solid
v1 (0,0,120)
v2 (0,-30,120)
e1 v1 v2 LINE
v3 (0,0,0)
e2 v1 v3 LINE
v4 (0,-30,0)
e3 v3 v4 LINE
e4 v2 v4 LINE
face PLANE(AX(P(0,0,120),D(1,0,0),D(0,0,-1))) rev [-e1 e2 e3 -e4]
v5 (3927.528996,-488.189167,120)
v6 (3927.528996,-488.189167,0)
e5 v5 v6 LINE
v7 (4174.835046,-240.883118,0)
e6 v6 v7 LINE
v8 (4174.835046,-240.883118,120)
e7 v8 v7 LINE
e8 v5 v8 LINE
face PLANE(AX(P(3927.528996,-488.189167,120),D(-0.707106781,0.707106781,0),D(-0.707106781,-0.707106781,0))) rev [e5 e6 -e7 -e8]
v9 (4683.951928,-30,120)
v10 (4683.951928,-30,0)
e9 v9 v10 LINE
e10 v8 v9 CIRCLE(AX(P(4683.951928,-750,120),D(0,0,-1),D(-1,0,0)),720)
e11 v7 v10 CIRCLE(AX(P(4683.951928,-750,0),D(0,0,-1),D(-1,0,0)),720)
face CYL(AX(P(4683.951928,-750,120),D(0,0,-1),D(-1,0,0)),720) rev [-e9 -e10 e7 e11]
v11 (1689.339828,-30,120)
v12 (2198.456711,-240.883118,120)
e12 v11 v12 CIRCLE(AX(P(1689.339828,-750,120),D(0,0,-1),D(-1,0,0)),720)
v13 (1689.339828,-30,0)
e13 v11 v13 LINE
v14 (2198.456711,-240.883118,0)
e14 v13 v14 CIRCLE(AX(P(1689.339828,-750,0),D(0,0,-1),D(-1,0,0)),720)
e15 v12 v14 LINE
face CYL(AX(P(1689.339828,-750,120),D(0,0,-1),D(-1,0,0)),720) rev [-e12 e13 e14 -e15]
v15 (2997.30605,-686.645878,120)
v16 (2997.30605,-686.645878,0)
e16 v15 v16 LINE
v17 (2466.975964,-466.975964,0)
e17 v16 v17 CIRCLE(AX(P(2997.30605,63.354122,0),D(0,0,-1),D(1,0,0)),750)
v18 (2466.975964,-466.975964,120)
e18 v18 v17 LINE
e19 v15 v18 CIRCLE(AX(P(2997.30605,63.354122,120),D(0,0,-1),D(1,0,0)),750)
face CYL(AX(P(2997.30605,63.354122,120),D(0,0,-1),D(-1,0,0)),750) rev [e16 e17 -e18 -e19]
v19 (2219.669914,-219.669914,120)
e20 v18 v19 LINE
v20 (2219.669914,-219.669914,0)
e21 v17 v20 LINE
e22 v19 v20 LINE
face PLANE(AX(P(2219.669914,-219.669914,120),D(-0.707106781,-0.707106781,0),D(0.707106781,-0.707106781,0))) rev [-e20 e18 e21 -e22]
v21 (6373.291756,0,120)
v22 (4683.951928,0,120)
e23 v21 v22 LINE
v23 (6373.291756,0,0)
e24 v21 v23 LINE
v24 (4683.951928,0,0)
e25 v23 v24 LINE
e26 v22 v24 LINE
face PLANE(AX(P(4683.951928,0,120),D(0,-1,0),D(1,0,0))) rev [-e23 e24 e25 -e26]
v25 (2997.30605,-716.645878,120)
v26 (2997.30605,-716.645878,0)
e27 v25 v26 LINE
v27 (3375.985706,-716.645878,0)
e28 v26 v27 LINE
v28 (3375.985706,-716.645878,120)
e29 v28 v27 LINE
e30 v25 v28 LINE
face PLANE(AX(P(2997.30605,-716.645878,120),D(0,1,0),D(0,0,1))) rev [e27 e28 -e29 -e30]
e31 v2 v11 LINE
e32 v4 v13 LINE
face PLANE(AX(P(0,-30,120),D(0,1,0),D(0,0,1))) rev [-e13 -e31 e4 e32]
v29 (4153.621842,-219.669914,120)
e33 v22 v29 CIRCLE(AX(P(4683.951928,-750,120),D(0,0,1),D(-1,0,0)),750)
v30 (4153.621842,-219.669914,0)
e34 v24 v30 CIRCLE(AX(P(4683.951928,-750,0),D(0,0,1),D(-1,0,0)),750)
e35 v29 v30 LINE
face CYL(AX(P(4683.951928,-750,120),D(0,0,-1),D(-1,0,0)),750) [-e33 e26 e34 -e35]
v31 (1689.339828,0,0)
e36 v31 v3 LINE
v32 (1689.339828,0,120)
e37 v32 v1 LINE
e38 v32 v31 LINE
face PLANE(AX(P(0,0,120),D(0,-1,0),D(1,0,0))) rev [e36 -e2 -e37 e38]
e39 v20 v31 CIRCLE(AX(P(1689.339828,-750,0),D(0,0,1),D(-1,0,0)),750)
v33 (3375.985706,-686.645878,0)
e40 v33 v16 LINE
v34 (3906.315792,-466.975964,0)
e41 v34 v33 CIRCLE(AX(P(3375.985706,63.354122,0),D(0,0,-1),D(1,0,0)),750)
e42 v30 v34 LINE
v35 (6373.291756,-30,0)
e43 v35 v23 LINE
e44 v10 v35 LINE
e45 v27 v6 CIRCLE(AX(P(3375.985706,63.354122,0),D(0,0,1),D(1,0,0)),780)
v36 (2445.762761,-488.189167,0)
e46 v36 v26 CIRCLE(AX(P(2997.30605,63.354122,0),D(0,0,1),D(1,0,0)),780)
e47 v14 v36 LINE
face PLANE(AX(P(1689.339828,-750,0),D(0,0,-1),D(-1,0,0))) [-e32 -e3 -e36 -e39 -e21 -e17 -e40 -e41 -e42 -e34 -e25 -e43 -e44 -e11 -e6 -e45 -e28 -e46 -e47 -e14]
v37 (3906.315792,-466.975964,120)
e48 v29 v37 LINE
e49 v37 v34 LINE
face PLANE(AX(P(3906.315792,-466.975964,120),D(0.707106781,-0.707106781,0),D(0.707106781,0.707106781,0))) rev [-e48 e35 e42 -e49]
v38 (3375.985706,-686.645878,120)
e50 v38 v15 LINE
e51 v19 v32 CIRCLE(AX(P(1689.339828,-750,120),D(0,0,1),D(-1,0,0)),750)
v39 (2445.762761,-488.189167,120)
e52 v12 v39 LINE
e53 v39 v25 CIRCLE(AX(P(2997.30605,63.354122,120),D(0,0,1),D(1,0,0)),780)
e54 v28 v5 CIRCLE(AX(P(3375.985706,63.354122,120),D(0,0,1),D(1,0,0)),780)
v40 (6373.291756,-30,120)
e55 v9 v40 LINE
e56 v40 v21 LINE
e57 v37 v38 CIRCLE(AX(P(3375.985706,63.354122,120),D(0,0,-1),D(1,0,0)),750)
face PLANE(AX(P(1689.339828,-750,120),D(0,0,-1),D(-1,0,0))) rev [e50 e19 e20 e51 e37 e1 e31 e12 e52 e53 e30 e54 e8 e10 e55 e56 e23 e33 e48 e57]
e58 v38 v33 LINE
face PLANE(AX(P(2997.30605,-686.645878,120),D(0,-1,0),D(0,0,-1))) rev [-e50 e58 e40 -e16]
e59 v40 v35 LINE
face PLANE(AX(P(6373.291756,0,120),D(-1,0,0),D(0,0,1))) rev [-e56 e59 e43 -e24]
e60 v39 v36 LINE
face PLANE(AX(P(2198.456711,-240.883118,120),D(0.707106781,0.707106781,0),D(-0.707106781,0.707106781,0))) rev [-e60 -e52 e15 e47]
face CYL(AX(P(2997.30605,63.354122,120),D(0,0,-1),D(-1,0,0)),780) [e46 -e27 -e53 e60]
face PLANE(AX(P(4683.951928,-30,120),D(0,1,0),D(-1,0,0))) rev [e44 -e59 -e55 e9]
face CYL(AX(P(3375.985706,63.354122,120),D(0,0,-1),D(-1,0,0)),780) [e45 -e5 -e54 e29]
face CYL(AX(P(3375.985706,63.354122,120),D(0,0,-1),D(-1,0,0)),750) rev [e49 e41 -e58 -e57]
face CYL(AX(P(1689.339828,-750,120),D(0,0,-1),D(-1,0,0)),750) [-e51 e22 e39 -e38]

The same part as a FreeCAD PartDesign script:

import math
import FreeCAD as App
import Part
import Sketcher

V = App.Vector
Q = App.Units.Quantity

doc = App.newDocument("Part")
params = doc.addObject("Spreadsheet::Sheet", "Params")
for row, (alias, value) in enumerate([
    ("sketch1_radius", "720 mm"),
    ("sketch1_radius2", "780 mm"),
    ("pad1_length", "120 mm"),
], start=1):
    params.set(f"A{row}", alias)
    params.set(f"B{row}", "=" + value)
    params.setAlias(f"B{row}", alias)

body = doc.addObject("PartDesign::Body", "Body")

sketch1 = body.newObject("Sketcher::SketchObject", "Sketch")
sketch1.AttachmentSupport = (doc.getObject("XY_Plane"), [""])
sketch1.MapMode = "FlatFace"
sketch1.addGeometry(Part.LineSegment(V(1689, 0, 0), V(0, 0, 0)), False)
sketch1.addGeometry(Part.LineSegment(V(0, 0, 0), V(0, -30, 0)), False)
sketch1.addGeometry(Part.LineSegment(V(0, -30, 0), V(1689, -30, 0)), False)
sketch1.addGeometry(Part.ArcOfCircle(Part.Circle(V(1689, -750, 0), V(0, 0, 1), 720), math.radians(45), math.radians(90)), False)
sketch1.addGeometry(Part.LineSegment(V(2198, -241, 0), V(2446, -488, 0)), False)
sketch1.addGeometry(Part.ArcOfCircle(Part.Circle(V(2997, 63, 0), V(0, 0, 1), 780), math.radians(-135), math.radians(-90)), False)
sketch1.addGeometry(Part.LineSegment(V(2997, -717, 0), V(3376, -717, 0)), False)
sketch1.addGeometry(Part.ArcOfCircle(Part.Circle(V(3376, 63, 0), V(0, 0, 1), 780), math.radians(-90), math.radians(-45)), False)
sketch1.addGeometry(Part.LineSegment(V(3928, -488, 0), V(4175, -241, 0)), False)
sketch1.addGeometry(Part.ArcOfCircle(Part.Circle(V(4684, -750, 0), V(0, 0, 1), 720), math.radians(90), math.radians(135)), False)
sketch1.addGeometry(Part.LineSegment(V(4684, -30, 0), V(6373, -30, 0)), False)
sketch1.addGeometry(Part.LineSegment(V(6373, -30, 0), V(6373, 0, 0)), False)
sketch1.addGeometry(Part.LineSegment(V(6373, 0, 0), V(4684, 0, 0)), False)
sketch1.addGeometry(Part.ArcOfCircle(Part.Circle(V(4684, -750, 0), V(0, 0, 1), 750), math.radians(90), math.radians(135)), False)
sketch1.addGeometry(Part.LineSegment(V(4154, -220, 0), V(3906, -467, 0)), False)
sketch1.addGeometry(Part.ArcOfCircle(Part.Circle(V(3376, 63, 0), V(0, 0, 1), 750), math.radians(-90), math.radians(-45)), False)
sketch1.addGeometry(Part.LineSegment(V(3376, -687, 0), V(2997, -687, 0)), False)
sketch1.addGeometry(Part.ArcOfCircle(Part.Circle(V(2997, 63, 0), V(0, 0, 1), 750), math.radians(-135), math.radians(-90)), False)
sketch1.addGeometry(Part.LineSegment(V(2467, -467, 0), V(2220, -220, 0)), False)
sketch1.addGeometry(Part.ArcOfCircle(Part.Circle(V(1689, -750, 0), V(0, 0, 1), 750), math.radians(45), math.radians(90)), False)
sketch1.addConstraint(Sketcher.Constraint("Coincident", 0, 2, 1, 1))
sketch1.addConstraint(Sketcher.Constraint("Coincident", 1, 2, 2, 1))
sketch1.addConstraint(Sketcher.Constraint("Tangent", 2, 2, 3, 2))
sketch1.addConstraint(Sketcher.Constraint("Tangent", 3, 1, 4, 1))
sketch1.addConstraint(Sketcher.Constraint("Tangent", 4, 2, 5, 1))
sketch1.addConstraint(Sketcher.Constraint("Tangent", 5, 2, 6, 1))
sketch1.addConstraint(Sketcher.Constraint("Tangent", 6, 2, 7, 1))
sketch1.addConstraint(Sketcher.Constraint("Tangent", 7, 2, 8, 1))
sketch1.addConstraint(Sketcher.Constraint("Tangent", 8, 2, 9, 2))
sketch1.addConstraint(Sketcher.Constraint("Coincident", 9, 1, 10, 1))
sketch1.addConstraint(Sketcher.Constraint("Coincident", 10, 2, 11, 1))
sketch1.addConstraint(Sketcher.Constraint("Coincident", 11, 2, 12, 1))
sketch1.addConstraint(Sketcher.Constraint("Coincident", 12, 2, 13, 1))
sketch1.addConstraint(Sketcher.Constraint("Tangent", 13, 2, 14, 1))
sketch1.addConstraint(Sketcher.Constraint("Tangent", 14, 2, 15, 2))
sketch1.addConstraint(Sketcher.Constraint("Tangent", 15, 1, 16, 1))
sketch1.addConstraint(Sketcher.Constraint("Tangent", 16, 2, 17, 2))
sketch1.addConstraint(Sketcher.Constraint("Tangent", 17, 1, 18, 1))
sketch1.addConstraint(Sketcher.Constraint("Tangent", 18, 2, 19, 1))
sketch1.addConstraint(Sketcher.Constraint("Coincident", 19, 2, 0, 1))
sketch1.addConstraint(Sketcher.Constraint("Horizontal", 0))
sketch1.addConstraint(Sketcher.Constraint("Vertical", 1))
sketch1.addConstraint(Sketcher.Constraint("Horizontal", 2))
sketch1.addConstraint(Sketcher.Constraint("Horizontal", 6))
sketch1.addConstraint(Sketcher.Constraint("Horizontal", 10))
sketch1.addConstraint(Sketcher.Constraint("Vertical", 11))
sketch1.addConstraint(Sketcher.Constraint("Horizontal", 12))
sketch1.addConstraint(Sketcher.Constraint("Horizontal", 16))
sketch1.addConstraint(Sketcher.Constraint("Coincident", 0, 2, -1, 1))
sketch1.addConstraint(Sketcher.Constraint("Coincident", 13, 3, 9, 3))
sketch1.addConstraint(Sketcher.Constraint("Coincident", 15, 3, 7, 3))
sketch1.addConstraint(Sketcher.Constraint("Coincident", 17, 3, 5, 3))
sketch1.addConstraint(Sketcher.Constraint("Coincident", 19, 3, 3, 3))
sketch1.addConstraint(Sketcher.Constraint("Equal", 5, 7))
sketch1.addConstraint(Sketcher.Constraint("Equal", 3, 9))
sketch1.addConstraint(Sketcher.Constraint("Equal", 13, 15))
sketch1.addConstraint(Sketcher.Constraint("Equal", 17, 19))
sketch1.addConstraint(Sketcher.Constraint("PointOnObject", 11, 2, -1))
sketch1.addConstraint(Sketcher.Constraint("Perpendicular", 4, 8))
sketch1.addConstraint(Sketcher.Constraint("Parallel", 8, 14))
sketch1.addConstraint(Sketcher.Constraint("Equal", 0, 2))
sketch1.addConstraint(Sketcher.Constraint("Equal", 2, 10))
sketch1.addConstraint(Sketcher.Constraint("Equal", 10, 12))
sketch1.addConstraint(Sketcher.Constraint("Equal", 4, 8))
sketch1.addConstraint(Sketcher.Constraint("Radius", 3, Q("720 mm")))
sketch1.addConstraint(Sketcher.Constraint("Radius", 5, Q("780 mm")))
sketch1.addConstraint(Sketcher.Constraint("DistanceX", 0, 2, 0, 1, Q("1689.339828 mm")))
sketch1.addConstraint(Sketcher.Constraint("DistanceX", 3, 3, 9, 3, Q("2994.6121 mm")))
sketch1.addConstraint(Sketcher.Constraint("Distance", 4, Q("349.74357 mm")))
sketch1.addConstraint(Sketcher.Constraint("DistanceX", -1, 1, 12, 2, Q("4683.951928 mm")))
sketch1.setExpression("Constraints[44]", "Params.sketch1_radius")
sketch1.setExpression("Constraints[45]", "Params.sketch1_radius2")
pad1 = body.newObject("PartDesign::Pad", "Pad")
pad1.Profile = sketch1
pad1.setExpression("Length", "Params.pad1_length")

doc.recompute()
